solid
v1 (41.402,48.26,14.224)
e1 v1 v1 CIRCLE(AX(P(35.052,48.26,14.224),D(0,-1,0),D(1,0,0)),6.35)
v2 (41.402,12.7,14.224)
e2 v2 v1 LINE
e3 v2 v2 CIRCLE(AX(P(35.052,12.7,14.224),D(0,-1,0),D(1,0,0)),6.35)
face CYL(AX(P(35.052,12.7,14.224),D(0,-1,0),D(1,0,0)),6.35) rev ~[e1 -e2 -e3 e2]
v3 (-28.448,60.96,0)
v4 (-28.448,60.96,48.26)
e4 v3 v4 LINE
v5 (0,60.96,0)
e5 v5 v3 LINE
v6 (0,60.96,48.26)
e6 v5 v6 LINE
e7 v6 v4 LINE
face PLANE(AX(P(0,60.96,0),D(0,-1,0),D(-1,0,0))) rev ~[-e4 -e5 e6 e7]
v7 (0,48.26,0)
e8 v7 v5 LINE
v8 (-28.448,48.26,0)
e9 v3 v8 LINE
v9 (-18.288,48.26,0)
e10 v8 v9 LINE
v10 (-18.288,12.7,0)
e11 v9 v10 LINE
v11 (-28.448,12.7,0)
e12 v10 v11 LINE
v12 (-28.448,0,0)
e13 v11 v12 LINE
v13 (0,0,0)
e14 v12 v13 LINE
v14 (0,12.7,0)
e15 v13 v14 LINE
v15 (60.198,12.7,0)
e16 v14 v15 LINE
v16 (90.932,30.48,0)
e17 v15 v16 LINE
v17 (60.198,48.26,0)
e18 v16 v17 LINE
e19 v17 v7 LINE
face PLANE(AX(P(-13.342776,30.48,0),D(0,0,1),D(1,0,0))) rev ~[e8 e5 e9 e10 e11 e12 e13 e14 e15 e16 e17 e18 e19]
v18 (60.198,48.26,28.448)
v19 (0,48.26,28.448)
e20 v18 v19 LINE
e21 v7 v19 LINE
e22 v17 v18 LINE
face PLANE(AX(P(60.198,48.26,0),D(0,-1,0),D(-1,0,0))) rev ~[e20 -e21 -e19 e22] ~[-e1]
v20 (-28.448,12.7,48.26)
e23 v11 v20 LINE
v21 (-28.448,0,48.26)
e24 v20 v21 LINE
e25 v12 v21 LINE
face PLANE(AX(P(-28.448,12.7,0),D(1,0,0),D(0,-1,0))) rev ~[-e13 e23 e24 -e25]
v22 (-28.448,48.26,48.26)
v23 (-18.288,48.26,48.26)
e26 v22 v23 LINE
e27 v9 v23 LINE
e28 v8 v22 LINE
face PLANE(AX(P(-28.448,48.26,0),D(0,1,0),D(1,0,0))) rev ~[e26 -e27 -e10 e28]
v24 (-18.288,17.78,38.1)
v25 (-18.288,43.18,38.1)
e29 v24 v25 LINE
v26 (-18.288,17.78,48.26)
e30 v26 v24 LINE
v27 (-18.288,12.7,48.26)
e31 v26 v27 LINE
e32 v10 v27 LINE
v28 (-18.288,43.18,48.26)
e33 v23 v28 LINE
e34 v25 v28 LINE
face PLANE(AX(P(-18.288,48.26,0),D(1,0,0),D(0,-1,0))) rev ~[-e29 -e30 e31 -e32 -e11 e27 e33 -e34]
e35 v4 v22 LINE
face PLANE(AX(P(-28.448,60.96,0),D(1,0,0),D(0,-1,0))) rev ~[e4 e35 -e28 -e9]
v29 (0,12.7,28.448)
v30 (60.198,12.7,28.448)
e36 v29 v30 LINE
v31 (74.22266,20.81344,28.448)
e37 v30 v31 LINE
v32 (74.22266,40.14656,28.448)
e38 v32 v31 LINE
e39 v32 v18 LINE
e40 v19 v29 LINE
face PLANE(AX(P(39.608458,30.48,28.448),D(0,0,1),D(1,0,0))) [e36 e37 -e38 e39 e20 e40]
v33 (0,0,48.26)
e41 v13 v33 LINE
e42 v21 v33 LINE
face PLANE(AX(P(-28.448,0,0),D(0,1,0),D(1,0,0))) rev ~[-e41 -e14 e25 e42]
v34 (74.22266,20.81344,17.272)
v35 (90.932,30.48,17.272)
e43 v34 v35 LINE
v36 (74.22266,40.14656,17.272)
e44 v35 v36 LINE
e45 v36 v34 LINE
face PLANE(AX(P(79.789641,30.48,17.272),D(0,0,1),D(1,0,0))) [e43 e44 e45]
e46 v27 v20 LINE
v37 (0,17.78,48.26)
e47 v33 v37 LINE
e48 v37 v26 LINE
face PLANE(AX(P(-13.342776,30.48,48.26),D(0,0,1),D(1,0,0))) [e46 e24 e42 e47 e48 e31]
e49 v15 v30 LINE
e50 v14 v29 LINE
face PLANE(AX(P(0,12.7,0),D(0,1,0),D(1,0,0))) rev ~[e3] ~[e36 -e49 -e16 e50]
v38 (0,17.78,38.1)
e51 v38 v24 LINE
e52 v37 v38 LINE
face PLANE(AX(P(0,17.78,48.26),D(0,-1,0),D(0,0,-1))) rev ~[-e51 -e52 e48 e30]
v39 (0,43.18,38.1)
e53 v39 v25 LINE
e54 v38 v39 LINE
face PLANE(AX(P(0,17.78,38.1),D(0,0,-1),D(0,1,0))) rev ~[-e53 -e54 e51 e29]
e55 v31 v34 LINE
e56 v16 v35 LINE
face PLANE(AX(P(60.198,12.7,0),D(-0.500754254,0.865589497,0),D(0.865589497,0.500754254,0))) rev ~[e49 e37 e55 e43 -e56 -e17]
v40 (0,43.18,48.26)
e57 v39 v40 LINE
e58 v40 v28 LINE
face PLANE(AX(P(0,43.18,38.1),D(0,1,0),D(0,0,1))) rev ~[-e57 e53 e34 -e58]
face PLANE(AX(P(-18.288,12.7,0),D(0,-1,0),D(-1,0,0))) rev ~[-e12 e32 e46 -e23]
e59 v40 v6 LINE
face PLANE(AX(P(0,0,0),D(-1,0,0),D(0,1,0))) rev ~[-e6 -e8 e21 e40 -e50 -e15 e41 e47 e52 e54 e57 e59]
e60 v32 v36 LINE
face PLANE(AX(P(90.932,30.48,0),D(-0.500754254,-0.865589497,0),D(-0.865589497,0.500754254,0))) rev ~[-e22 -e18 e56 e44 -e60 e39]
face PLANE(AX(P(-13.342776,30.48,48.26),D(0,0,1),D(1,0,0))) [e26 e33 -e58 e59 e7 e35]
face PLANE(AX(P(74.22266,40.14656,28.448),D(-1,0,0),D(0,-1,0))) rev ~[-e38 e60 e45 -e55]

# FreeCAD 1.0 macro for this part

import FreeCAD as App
import Part
import Sketcher
from FreeCAD import Vector
Q = App.Units.Quantity


def add_polygon(sketch, points):
    """Adds a closed chain of lines whose ends are joined by coincident constraints."""
    first, n = sketch.GeometryCount, len(points)
    for a, b in zip(points, points[1:] + points[:1]):
        sketch.addGeometry(Part.LineSegment(App.Vector(*a, 0), App.Vector(*b, 0)), False)
    for i in range(n):
        sketch.addConstraint(Sketcher.Constraint("Coincident", first + i, 2, first + (i + 1) % n, 1))

doc = App.newDocument("Part")
body = doc.addObject("PartDesign::Body", "Body")

# Sketch on XY plane
sketch1 = doc.addObject("Sketcher::SketchObject", "Sketch")
body.addObject(sketch1)
sketch1.AttachmentSupport = (doc.XY_Plane, [""])
sketch1.MapMode = "FlatFace"
add_polygon(sketch1, [(-28.448, 0), (0, 0), (0, 60.96), (-28.448, 60.96), (-28.448, 48.26), (-18.288, 48.26), (-18.288, 12.7), (-28.448, 12.7)])  # lines 0-7
sketch1.addConstraint([
    Sketcher.Constraint("Horizontal", 0),
    Sketcher.Constraint("Vertical", 1),
    Sketcher.Constraint("Horizontal", 2),
    Sketcher.Constraint("Vertical", 3),
    Sketcher.Constraint("Horizontal", 4),
    Sketcher.Constraint("Vertical", 5),
    Sketcher.Constraint("Horizontal", 6),
    Sketcher.Constraint("Vertical", 7),
    Sketcher.Constraint("Coincident", 0, 2, -1, 1),
    Sketcher.Constraint("Vertical", 3, 2, 6, 2),
    Sketcher.Constraint("Equal", 3, 7),
    Sketcher.Constraint("DistanceX", 4, 1, 4, 2, Q("0.4 in")),
    Sketcher.Constraint("DistanceY", 1, 1, 1, 2, Q("2.4 in")),
    Sketcher.Constraint("DistanceY", 3, 2, 3, 1, Q("0.5 in")),
    Sketcher.Constraint("DistanceX", 0, 1, 0, 2, Q("1.12 in")),
])
pad1 = doc.addObject("PartDesign::Pad", "Pad")
body.addObject(pad1)
pad1.Profile = sketch1
pad1.Length = Q("1.9 in")

# Sketch on YZ plane
sketch2 = doc.addObject("Sketcher::SketchObject", "Sketch001")
body.addObject(sketch2)
sketch2.AttachmentSupport = (doc.YZ_Plane, [""])
sketch2.MapMode = "FlatFace"
add_polygon(sketch2, [(17.78, 38.1), (43.18, 38.1), (43.18, 48.26), (17.78, 48.26)])  # lines 0-3
sketch2.addConstraint([
    Sketcher.Constraint("Horizontal", 0),
    Sketcher.Constraint("Vertical", 1),
    Sketcher.Constraint("Horizontal", 2),
    Sketcher.Constraint("Vertical", 3),
    Sketcher.Constraint("DistanceX", 0, 1, 0, 2, Q("1 in")),
    Sketcher.Constraint("DistanceY", 1, 1, 1, 2, Q("0.4 in")),
    Sketcher.Constraint("DistanceX", -1, 1, 0, 2, Q("1.7 in")),
    Sketcher.Constraint("DistanceY", -1, 1, 0, 2, Q("1.5 in")),
])
pocket1 = doc.addObject("PartDesign::Pocket", "Pocket")
body.addObject(pocket1)
pocket1.Profile = sketch2
pocket1.Type = "ThroughAll"

# Sketch on XY plane
sketch3 = doc.addObject("Sketcher::SketchObject", "Sketch002")
body.addObject(sketch3)
sketch3.AttachmentSupport = (doc.XY_Plane, [""])
sketch3.MapMode = "FlatFace"
add_polygon(sketch3, [(0, 12.7), (60.198, 12.7), (90.932, 30.48), (60.198, 48.26), (0, 48.26)])  # lines 0-4
sketch3.addConstraint([
    Sketcher.Constraint("Horizontal", 0),
    Sketcher.Constraint("Horizontal", 3),
    Sketcher.Constraint("Vertical", 4),
    Sketcher.Constraint("PointOnObject", 3, 2, -2),
    Sketcher.Constraint("Vertical", 0, 2, 2, 2),
    Sketcher.Constraint("Equal", 1, 2),
    Sketcher.Constraint("DistanceY", 4, 2, 4, 1, Q("1.4 in")),
    Sketcher.Constraint("DistanceX", 0, 1, 0, 2, Q("2.37 in")),
    Sketcher.Constraint("DistanceY", -1, 1, 0, 2, Q("0.5 in")),
    Sketcher.Constraint("DistanceX", -1, 1, 1, 2, Q("3.58 in")),
])
pad2 = doc.addObject("PartDesign::Pad", "Pad001")
body.addObject(pad2)
pad2.Profile = sketch3
pad2.Length = Q("1.12 in")

# Sketch on XY plane
sketch4 = doc.addObject("Sketcher::SketchObject", "Sketch003")
body.addObject(sketch4)
sketch4.AttachmentSupport = (doc.XY_Plane, [""])
sketch4.MapMode = "FlatFace"
sketch4.AttachmentOffset = App.Placement(Vector(0, 0, 1.12 * 25.4), App.Rotation())
add_polygon(sketch4, [(74.22266, 20.81344), (90.932, 30.48), (74.22266, 40.14656)])  # lines 0-2
sketch4.addConstraint([
    Sketcher.Constraint("Vertical", 2),
    Sketcher.Constraint("Equal", 0, 1),
    Sketcher.Constraint("DistanceY", -1, 1, 0, 2, Q("1.2 in")),
    Sketcher.Constraint("Distance", 0, Q("0.76 in")),
    Sketcher.Constraint("DistanceX", -1, 1, 0, 2, Q("3.58 in")),
    Sketcher.Constraint("DistanceY", 2, 2, 2, 1, 19.33312),
])
pocket2 = doc.addObject("PartDesign::Pocket", "Pocket001")
body.addObject(pocket2)
pocket2.Profile = sketch4
pocket2.Length = Q("0.44 in")

# Sketch on XZ plane
sketch5 = doc.addObject("Sketcher::SketchObject", "Sketch004")
body.addObject(sketch5)
sketch5.AttachmentSupport = (doc.XZ_Plane, [""])
sketch5.MapMode = "FlatFace"
sketch5.AttachmentOffset = App.Placement(Vector(0, 0, -0.5 * 25.4), App.Rotation())
sketch5.addGeometry(Part.Circle(Vector(35.052, 14.224, 0), Vector(0, 0, 1), 6.35), False)
sketch5.addConstraint([
    Sketcher.Constraint("Diameter", 0, Q("0.5 in")),
    Sketcher.Constraint("DistanceX", -1, 1, 0, 3, Q("1.38 in")),
    Sketcher.Constraint("DistanceY", -1, 1, 0, 3, Q("0.56 in")),
])
pocket3 = doc.addObject("PartDesign::Pocket", "Pocket002")
body.addObject(pocket3)
pocket3.Profile = sketch5
pocket3.Type = "ThroughAll"

doc.recompute()
